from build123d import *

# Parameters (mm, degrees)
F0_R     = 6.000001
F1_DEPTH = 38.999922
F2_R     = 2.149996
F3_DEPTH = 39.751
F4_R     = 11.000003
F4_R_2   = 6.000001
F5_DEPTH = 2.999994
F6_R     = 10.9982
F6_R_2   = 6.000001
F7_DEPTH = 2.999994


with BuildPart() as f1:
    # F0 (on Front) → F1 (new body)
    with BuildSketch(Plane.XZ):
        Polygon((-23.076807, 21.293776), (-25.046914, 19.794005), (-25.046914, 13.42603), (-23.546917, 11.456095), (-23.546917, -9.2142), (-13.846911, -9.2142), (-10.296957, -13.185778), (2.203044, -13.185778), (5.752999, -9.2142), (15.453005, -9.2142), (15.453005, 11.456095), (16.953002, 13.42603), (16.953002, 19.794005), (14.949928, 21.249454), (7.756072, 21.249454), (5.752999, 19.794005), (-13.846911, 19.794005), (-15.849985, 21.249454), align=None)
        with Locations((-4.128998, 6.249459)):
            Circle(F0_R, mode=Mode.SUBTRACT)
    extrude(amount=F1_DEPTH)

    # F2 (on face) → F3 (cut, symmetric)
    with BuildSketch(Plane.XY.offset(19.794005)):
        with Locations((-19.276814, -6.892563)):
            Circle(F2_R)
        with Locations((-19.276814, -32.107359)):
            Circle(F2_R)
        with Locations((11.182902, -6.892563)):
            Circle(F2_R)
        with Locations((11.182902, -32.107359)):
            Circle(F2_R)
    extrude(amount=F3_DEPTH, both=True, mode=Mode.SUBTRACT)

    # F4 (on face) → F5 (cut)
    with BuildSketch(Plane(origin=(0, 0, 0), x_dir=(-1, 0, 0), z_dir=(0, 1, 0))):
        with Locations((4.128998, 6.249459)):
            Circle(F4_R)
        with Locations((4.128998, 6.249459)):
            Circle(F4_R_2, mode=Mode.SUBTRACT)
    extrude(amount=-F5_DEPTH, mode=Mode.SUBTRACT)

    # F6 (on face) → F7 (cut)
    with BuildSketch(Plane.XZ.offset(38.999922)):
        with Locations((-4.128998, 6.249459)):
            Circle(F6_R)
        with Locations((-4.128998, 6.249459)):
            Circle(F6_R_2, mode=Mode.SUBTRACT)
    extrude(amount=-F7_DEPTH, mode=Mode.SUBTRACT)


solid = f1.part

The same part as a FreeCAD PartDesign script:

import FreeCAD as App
import Part
import Sketcher

V = App.Vector
Q = App.Units.Quantity


def add_polygon(sketch, points):
    """Adds a closed chain of lines whose ends are joined by coincident constraints."""
    first, n = sketch.GeometryCount, len(points)
    for a, b in zip(points, points[1:] + points[:1]):
        sketch.addGeometry(Part.LineSegment(App.Vector(*a, 0), App.Vector(*b, 0)), False)
    for i in range(n):
        sketch.addConstraint(Sketcher.Constraint("Coincident", first + i, 2, first + (i + 1) % n, 1))

doc = App.newDocument("Part")
body = doc.addObject("PartDesign::Body", "Body")

# Sketch on XZ plane
sketch1 = body.newObject("Sketcher::SketchObject", "Sketch")
sketch1.AttachmentSupport = (doc.getObject("XZ_Plane"), [""])
sketch1.MapMode = "FlatFace"
add_polygon(sketch1, [(-23.076807, 21.293776), (-25.046914, 19.794005), (-25.046914, 13.42603), (-23.546917, 11.456095), (-23.546917, -9.2142), (-13.846911, -9.2142), (-10.296957, -13.185778), (2.203044, -13.185778), (5.752999, -9.2142), (15.453005, -9.2142), (15.453005, 11.456095), (16.953002, 13.42603), (16.953002, 19.794005), (14.949928, 21.249454), (7.756072, 21.249454), (5.752999, 19.794005), (-13.846911, 19.794005), (-15.849985, 21.249454)])  # lines 0-17
sketch1.addGeometry(Part.Circle(V(-4.128998, 6.249459, 0), V(0, 0, 1), 6.000001), False)  # 18
sketch1.addConstraint([
    Sketcher.Constraint("Vertical", 1),
    Sketcher.Constraint("Vertical", 3),
    Sketcher.Constraint("Horizontal", 4),
    Sketcher.Constraint("Horizontal", 6),
    Sketcher.Constraint("Horizontal", 8),
    Sketcher.Constraint("Vertical", 9),
    Sketcher.Constraint("Vertical", 11),
    Sketcher.Constraint("Horizontal", 13),
    Sketcher.Constraint("Horizontal", 15),
    Sketcher.Constraint("Parallel", 12, 16),
    Sketcher.Constraint("Horizontal", 4, 2, 7, 2),
    Sketcher.Constraint("Horizontal", 2, 2, 9, 2),
    Sketcher.Constraint("Horizontal", 1, 2, 10, 2),
    Sketcher.Constraint("Horizontal", 0, 2, 11, 2),
    Sketcher.Constraint("Horizontal", 11, 2, 14, 2),
    Sketcher.Constraint("Horizontal", 13, 2, 16, 2),
    Sketcher.Constraint("Vertical", 7, 2, 14, 2),
    Sketcher.Constraint("Vertical", 4, 2, 15, 2),
    Sketcher.Constraint("Equal", 4, 8),
    Sketcher.Constraint("Equal", 0, 2),
    Sketcher.Constraint("Equal", 5, 7),
    Sketcher.Constraint("Equal", 2, 10),
    Sketcher.Constraint("Equal", 10, 12),
    Sketcher.Constraint("Equal", 12, 14),
    Sketcher.Constraint("DistanceX", 18, 3, 10, 2, Q("0.83 in")),
    Sketcher.Constraint("Diameter", 18, Q("12.000002 mm")),
    Sketcher.Constraint("DistanceX", 6, 1, 6, 2, Q("12.500001 mm")),
    Sketcher.Constraint("DistanceX", 15, 2, 15, 1, Q("19.59991 mm")),
    Sketcher.Constraint("DistanceX", 18, 3, -1, 1, Q("4.128998 mm")),
    Sketcher.Constraint("DistanceY", 3, 2, -1, 1, Q("9.2142 mm")),
    Sketcher.Constraint("DistanceX", -1, 1, 7, 2, Q("5.752999 mm")),
    Sketcher.Constraint("Distance", 0, Q("2.476012 mm")),
    Sketcher.Constraint("DistanceX", 4, 1, 4, 2, Q("9.700006 mm")),
    Sketcher.Constraint("DistanceX", 13, 2, 13, 1, Q("7.193856 mm")),
    Sketcher.Constraint("DistanceY", 1, 2, 1, 1, Q("6.367975 mm")),
    Sketcher.Constraint("DistanceY", 3, 2, 3, 1, Q("20.670295 mm")),
    Sketcher.Constraint("DistanceY", -1, 1, 18, 3, Q("6.249459 mm")),
    Sketcher.Constraint("DistanceY", 5, 2, -1, 1, Q("13.185778 mm")),
    Sketcher.Constraint("DistanceY", 0, 2, 17, 2, Q("1.499771 mm")),
])
pad1 = body.newObject("PartDesign::Pad", "Pad")
pad1.Profile = sketch1
pad1.Length = 38.999922

# Sketch on XY plane
sketch2 = body.newObject("Sketcher::SketchObject", "Sketch001")
sketch2.AttachmentSupport = (doc.getObject("XY_Plane"), [""])
sketch2.MapMode = "FlatFace"
sketch2.AttachmentOffset = App.Placement(V(0, 0, 19.794005), App.Rotation())
sketch2.addGeometry([
    Part.Circle(V(-19.276814, -6.892563, 0), V(0, 0, 1), 2.149996),
    Part.Circle(V(-19.276814, -32.107359, 0), V(0, 0, 1), 2.149996),
    Part.Circle(V(11.182902, -6.892563, 0), V(0, 0, 1), 2.149996),
    Part.Circle(V(11.182902, -32.107359, 0), V(0, 0, 1), 2.149996),
], False)
sketch2.addConstraint([
    Sketcher.Constraint("Equal", 0, 1),
    Sketcher.Constraint("Equal", 1, 2),
    Sketcher.Constraint("Equal", 2, 3),
    Sketcher.Constraint("Horizontal", 0, 3, 2, 3),
    Sketcher.Constraint("Horizontal", 1, 3, 3, 3),
    Sketcher.Constraint("Vertical", 0, 3, 1, 3),
    Sketcher.Constraint("Vertical", 2, 3, 3, 3),
    Sketcher.Constraint("Diameter", 0, Q("4.299992 mm")),
    Sketcher.Constraint("DistanceY", 1, 3, -1, 1, Q("32.107359 mm")),
    Sketcher.Constraint("DistanceX", 0, 3, -1, 1, Q("19.276814 mm")),
    Sketcher.Constraint("DistanceY", 0, 3, -1, 1, Q("6.892563 mm")),
    Sketcher.Constraint("DistanceX", -1, 1, 2, 3, Q("11.182902 mm")),
])
pocket1 = body.newObject("PartDesign::Pocket", "Pocket")
pocket1.Profile = sketch2
pocket1.Length = Q("3.13 in")
pocket1.Midplane = True

# Sketch on XZ plane
sketch3 = body.newObject("Sketcher::SketchObject", "Sketch002")
sketch3.AttachmentSupport = (doc.getObject("XZ_Plane"), [""])
sketch3.MapMode = "FlatFace"
sketch3.addGeometry([
    Part.Circle(V(-4.128998, 6.249459, 0), V(0, 0, 1), 11.000003),
    Part.Circle(V(-4.128998, 6.249459, 0), V(0, 0, 1), 6.000001),
], False)
sketch3.addConstraint([
    Sketcher.Constraint("Coincident", 1, 3, 0, 3),
    Sketcher.Constraint("Diameter", 0, Q("22.000006 mm")),
    Sketcher.Constraint("Diameter", 1, Q("12.000002 mm")),
    Sketcher.Constraint("DistanceX", 0, 3, -1, 1, Q("4.128998 mm")),
    Sketcher.Constraint("DistanceY", -1, 1, 0, 3, Q("6.249459 mm")),
])
pocket2 = body.newObject("PartDesign::Pocket", "Pocket001")
pocket2.Profile = sketch3
pocket2.Length = 2.999994
pocket2.Reversed = True

# Sketch on XZ plane
sketch4 = body.newObject("Sketcher::SketchObject", "Sketch003")
sketch4.AttachmentSupport = (doc.getObject("XZ_Plane"), [""])
sketch4.MapMode = "FlatFace"
sketch4.AttachmentOffset = App.Placement(V(0, 0, 38.999922), App.Rotation())
sketch4.addGeometry([
    Part.Circle(V(-4.128998, 6.249459, 0), V(0, 0, 1), 10.9982),
    Part.Circle(V(-4.128998, 6.249459, 0), V(0, 0, 1), 6.000001),
], False)
sketch4.addConstraint([
    Sketcher.Constraint("Coincident", 1, 3, 0, 3),
    Sketcher.Constraint("Diameter", 0, Q("0.866 in")),
    Sketcher.Constraint("Diameter", 1, Q("12.000002 mm")),
    Sketcher.Constraint("DistanceX", 0, 3, -1, 1, Q("4.128998 mm")),
    Sketcher.Constraint("DistanceY", -1, 1, 0, 3, Q("6.249459 mm")),
])
pocket3 = body.newObject("PartDesign::Pocket", "Pocket002")
pocket3.Profile = sketch4
pocket3.Length = 2.999994

doc.recompute()
